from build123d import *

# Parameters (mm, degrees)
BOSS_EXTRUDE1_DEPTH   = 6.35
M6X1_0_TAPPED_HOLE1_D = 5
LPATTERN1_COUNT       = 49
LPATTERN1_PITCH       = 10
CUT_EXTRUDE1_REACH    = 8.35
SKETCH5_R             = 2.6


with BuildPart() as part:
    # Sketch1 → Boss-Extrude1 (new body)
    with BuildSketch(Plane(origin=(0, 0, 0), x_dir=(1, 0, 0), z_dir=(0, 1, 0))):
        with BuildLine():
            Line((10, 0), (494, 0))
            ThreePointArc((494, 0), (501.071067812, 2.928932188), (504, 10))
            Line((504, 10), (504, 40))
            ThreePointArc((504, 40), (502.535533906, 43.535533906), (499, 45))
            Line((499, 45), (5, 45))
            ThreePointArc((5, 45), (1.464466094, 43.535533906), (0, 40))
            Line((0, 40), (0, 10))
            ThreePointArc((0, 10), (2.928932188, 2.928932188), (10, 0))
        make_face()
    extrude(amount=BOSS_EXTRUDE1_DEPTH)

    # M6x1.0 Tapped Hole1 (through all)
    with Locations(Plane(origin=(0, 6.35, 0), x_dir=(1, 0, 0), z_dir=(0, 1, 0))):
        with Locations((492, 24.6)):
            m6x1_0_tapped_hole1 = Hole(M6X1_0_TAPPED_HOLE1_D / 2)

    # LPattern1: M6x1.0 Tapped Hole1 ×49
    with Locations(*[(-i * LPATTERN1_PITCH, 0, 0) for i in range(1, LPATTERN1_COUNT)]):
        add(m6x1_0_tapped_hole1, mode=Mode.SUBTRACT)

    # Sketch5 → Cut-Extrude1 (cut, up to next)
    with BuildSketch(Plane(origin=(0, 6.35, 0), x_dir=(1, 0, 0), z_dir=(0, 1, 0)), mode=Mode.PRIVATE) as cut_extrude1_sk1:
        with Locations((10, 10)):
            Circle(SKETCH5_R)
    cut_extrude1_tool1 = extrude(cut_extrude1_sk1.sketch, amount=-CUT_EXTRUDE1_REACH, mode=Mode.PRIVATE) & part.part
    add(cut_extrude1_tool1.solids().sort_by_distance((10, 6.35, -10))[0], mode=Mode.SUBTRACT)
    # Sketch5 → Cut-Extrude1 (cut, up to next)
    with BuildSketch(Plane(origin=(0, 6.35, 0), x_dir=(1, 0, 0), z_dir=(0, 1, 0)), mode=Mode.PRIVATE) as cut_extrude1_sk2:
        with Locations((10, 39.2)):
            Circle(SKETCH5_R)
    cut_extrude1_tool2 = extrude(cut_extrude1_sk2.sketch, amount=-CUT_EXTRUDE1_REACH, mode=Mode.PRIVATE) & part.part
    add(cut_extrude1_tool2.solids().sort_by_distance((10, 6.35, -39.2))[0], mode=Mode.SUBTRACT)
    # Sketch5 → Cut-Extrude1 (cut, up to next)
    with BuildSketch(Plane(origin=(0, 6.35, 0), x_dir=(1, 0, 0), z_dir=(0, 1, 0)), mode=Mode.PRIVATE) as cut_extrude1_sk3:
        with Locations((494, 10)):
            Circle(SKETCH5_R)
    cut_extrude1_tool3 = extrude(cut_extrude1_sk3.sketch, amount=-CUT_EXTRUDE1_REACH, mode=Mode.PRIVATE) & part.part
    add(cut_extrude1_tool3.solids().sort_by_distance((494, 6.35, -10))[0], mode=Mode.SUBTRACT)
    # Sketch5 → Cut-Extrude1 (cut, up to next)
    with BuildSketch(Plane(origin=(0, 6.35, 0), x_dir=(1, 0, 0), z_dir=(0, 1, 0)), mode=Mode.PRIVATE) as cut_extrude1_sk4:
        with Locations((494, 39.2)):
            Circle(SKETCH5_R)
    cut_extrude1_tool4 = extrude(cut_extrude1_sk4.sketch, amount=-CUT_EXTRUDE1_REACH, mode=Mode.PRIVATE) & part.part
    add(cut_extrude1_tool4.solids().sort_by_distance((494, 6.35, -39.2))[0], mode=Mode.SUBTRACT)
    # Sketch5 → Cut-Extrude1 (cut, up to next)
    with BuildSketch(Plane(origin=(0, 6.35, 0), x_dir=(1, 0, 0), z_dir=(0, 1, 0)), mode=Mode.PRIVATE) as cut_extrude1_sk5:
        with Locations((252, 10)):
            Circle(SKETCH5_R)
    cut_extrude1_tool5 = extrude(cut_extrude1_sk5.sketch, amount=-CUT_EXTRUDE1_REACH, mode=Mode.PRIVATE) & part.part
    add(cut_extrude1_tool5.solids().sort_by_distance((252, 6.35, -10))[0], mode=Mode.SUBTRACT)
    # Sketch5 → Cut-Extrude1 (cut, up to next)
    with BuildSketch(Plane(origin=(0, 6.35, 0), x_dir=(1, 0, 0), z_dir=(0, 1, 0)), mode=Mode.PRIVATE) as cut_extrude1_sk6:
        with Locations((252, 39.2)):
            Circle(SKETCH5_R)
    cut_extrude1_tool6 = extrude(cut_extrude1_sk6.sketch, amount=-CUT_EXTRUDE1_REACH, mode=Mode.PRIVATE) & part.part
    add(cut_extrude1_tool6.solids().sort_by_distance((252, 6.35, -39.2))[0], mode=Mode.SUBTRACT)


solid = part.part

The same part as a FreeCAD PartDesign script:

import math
import FreeCAD as App
import Part
import Sketcher

doc = App.newDocument("Part")
params = doc.addObject("Spreadsheet::Sheet", "Params")
for row, (alias, value) in enumerate([
    ("sketch1_radius", "10 mm"),
    ("sketch1_radius2", "5 mm"),
    ("sketch1_width", "484 mm"),
    ("sketch1_height", "30 mm"),
    ("pad1_length", "6.35 mm"),
    ("sketch2_diameter", "5 mm"),
    ("hole_diameter", "5 mm"),
    ("linearpattern_pitch", "10 mm"),
    ("sketch3_diameter", "5.2 mm"),
    ("sketch4_diameter", "5.2 mm"),
    ("sketch5_diameter", "5.2 mm"),
    ("sketch6_diameter", "5.2 mm"),
    ("sketch7_diameter", "5.2 mm"),
    ("sketch8_diameter", "5.2 mm"),
], start=1):
    params.set(f"A{row}", alias)
    params.set(f"B{row}", "=" + value)
    params.setAlias(f"B{row}", alias)

body = doc.addObject("PartDesign::Body", "Body")

sketch1 = body.newObject("Sketcher::SketchObject", "Sketch")
sketch1.AttachmentSupport = (doc.getObject("XZ_Plane"), [""])
sketch1.MapMode = "FlatFace"
sketch1.addGeometry([
    Part.LineSegment(App.Vector(10, 0, 0), App.Vector(494, 0, 0)),
    Part.ArcOfCircle(Part.Circle(App.Vector(494, -10, 0), App.Vector(0, 0, 1), 10), math.radians(0), math.radians(90)),
    Part.LineSegment(App.Vector(504, -10, 0), App.Vector(504, -40, 0)),
    Part.ArcOfCircle(Part.Circle(App.Vector(499, -40, 0), App.Vector(0, 0, 1), 5), math.radians(-90), math.radians(0)),
    Part.LineSegment(App.Vector(499, -45, 0), App.Vector(5, -45, 0)),
    Part.ArcOfCircle(Part.Circle(App.Vector(5, -40, 0), App.Vector(0, 0, 1), 5), math.radians(180), math.radians(270)),
    Part.LineSegment(App.Vector(0, -40, 0), App.Vector(0, -10, 0)),
    Part.ArcOfCircle(Part.Circle(App.Vector(10, -10, 0), App.Vector(0, 0, 1), 10), math.radians(90), math.radians(180)),
], False)
sketch1.addConstraint([
    Sketcher.Constraint("Tangent", 0, 2, 1, 2),
    Sketcher.Constraint("Tangent", 1, 1, 2, 1),
    Sketcher.Constraint("Tangent", 2, 2, 3, 2),
    Sketcher.Constraint("Tangent", 3, 1, 4, 1),
    Sketcher.Constraint("Tangent", 4, 2, 5, 2),
    Sketcher.Constraint("Tangent", 5, 1, 6, 1),
    Sketcher.Constraint("Tangent", 6, 2, 7, 2),
    Sketcher.Constraint("Tangent", 7, 1, 0, 1),
    Sketcher.Constraint("Horizontal", 0),
    Sketcher.Constraint("Vertical", 2),
    Sketcher.Constraint("Horizontal", 4),
    Sketcher.Constraint("Vertical", 6),
    Sketcher.Constraint("Equal", 3, 5),
    Sketcher.Constraint("Equal", 1, 7),
    Sketcher.Constraint("PointOnObject", 0, 2, -1),
    Sketcher.Constraint("PointOnObject", 5, 1, -2),
    Sketcher.Constraint("Radius", 1, 10.0),
    Sketcher.Constraint("Radius", 3, 5.0),
    Sketcher.Constraint("DistanceX", 0, 1, 0, 2, 484.0),
    Sketcher.Constraint("DistanceY", 2, 2, 2, 1, 30.0),
])
sketch1.setExpression("Constraints[16]", "Params.sketch1_radius")
sketch1.setExpression("Constraints[17]", "Params.sketch1_radius2")
sketch1.setExpression("Constraints[18]", "Params.sketch1_width")
sketch1.setExpression("Constraints[19]", "Params.sketch1_height")
pad1 = body.newObject("PartDesign::Pad", "Pad")
pad1.Profile = sketch1
pad1.setExpression("Length", "Params.pad1_length")
pad1.Reversed = True

sketch2 = body.newObject("Sketcher::SketchObject", "Sketch001")
sketch2.AttachmentSupport = (doc.getObject("XZ_Plane"), [""])
sketch2.MapMode = "FlatFace"
sketch2.AttachmentOffset = App.Placement(App.Vector(0, 0, -6.35), App.Rotation())
sketch2.addGeometry(Part.Circle(App.Vector(492, -24.6, 0), App.Vector(0, 0, 1), 2.5), False)
sketch2.addConstraint([
    Sketcher.Constraint("Diameter", 0, 5.0),
    Sketcher.Constraint("DistanceX", -1, 1, 0, 3, 492.0),
    Sketcher.Constraint("DistanceY", 0, 3, -1, 1, 24.6),
])
sketch2.setExpression("Constraints[0]", "Params.sketch2_diameter")
doc.recompute()
hole = body.newObject("PartDesign::Hole", "Hole")
hole.Profile = sketch2
hole.ThreadType = "None"
hole.setExpression("Diameter", "Params.hole_diameter")
hole.DepthType = "ThroughAll"
hole.Reversed = True
doc.recompute()

linearpattern = body.newObject("PartDesign::LinearPattern", "LinearPattern")
linearpattern.Originals = [hole]
linearpattern.Direction = (doc.getObject("X_Axis"), [""])
linearpattern.Mode = "offset"
linearpattern.setExpression("Offset", "Params.linearpattern_pitch")
linearpattern.Occurrences = 49
linearpattern.Reversed = True
body.Tip = linearpattern

sketch3 = body.newObject("Sketcher::SketchObject", "Sketch002")
sketch3.AttachmentSupport = (doc.getObject("XZ_Plane"), [""])
sketch3.MapMode = "FlatFace"
sketch3.AttachmentOffset = App.Placement(App.Vector(0, 0, -6.35), App.Rotation())
sketch3.addGeometry(Part.Circle(App.Vector(10, -10, 0), App.Vector(0, 0, 1), 2.6), False)
sketch3.addConstraint([
    Sketcher.Constraint("Diameter", 0, 5.2),
    Sketcher.Constraint("DistanceX", -1, 1, 0, 3, 10.0),
    Sketcher.Constraint("DistanceY", 0, 3, -1, 1, 10.0),
])
sketch3.setExpression("Constraints[0]", "Params.sketch3_diameter")
pocket1 = body.newObject("PartDesign::Pocket", "Pocket")
pocket1.Profile = sketch3
pocket1.Type = "UpToFirst"
pocket1.Reversed = True

sketch4 = body.newObject("Sketcher::SketchObject", "Sketch003")
sketch4.AttachmentSupport = (doc.getObject("XZ_Plane"), [""])
sketch4.MapMode = "FlatFace"
sketch4.AttachmentOffset = App.Placement(App.Vector(0, 0, -6.35), App.Rotation())
sketch4.addGeometry(Part.Circle(App.Vector(10, -39.2, 0), App.Vector(0, 0, 1), 2.6), False)
sketch4.addConstraint([
    Sketcher.Constraint("Diameter", 0, 5.2),
    Sketcher.Constraint("DistanceX", -1, 1, 0, 3, 10.0),
    Sketcher.Constraint("DistanceY", 0, 3, -1, 1, 39.2),
])
sketch4.setExpression("Constraints[0]", "Params.sketch4_diameter")
pocket2 = body.newObject("PartDesign::Pocket", "Pocket001")
pocket2.Profile = sketch4
pocket2.Type = "UpToFirst"
pocket2.Reversed = True

sketch5 = body.newObject("Sketcher::SketchObject", "Sketch004")
sketch5.AttachmentSupport = (doc.getObject("XZ_Plane"), [""])
sketch5.MapMode = "FlatFace"
sketch5.AttachmentOffset = App.Placement(App.Vector(0, 0, -6.35), App.Rotation())
sketch5.addGeometry(Part.Circle(App.Vector(494, -10, 0), App.Vector(0, 0, 1), 2.6), False)
sketch5.addConstraint([
    Sketcher.Constraint("Diameter", 0, 5.2),
    Sketcher.Constraint("DistanceX", -1, 1, 0, 3, 494.0),
    Sketcher.Constraint("DistanceY", 0, 3, -1, 1, 10.0),
])
sketch5.setExpression("Constraints[0]", "Params.sketch5_diameter")
pocket3 = body.newObject("PartDesign::Pocket", "Pocket002")
pocket3.Profile = sketch5
pocket3.Type = "UpToFirst"
pocket3.Reversed = True

sketch6 = body.newObject("Sketcher::SketchObject", "Sketch005")
sketch6.AttachmentSupport = (doc.getObject("XZ_Plane"), [""])
sketch6.MapMode = "FlatFace"
sketch6.AttachmentOffset = App.Placement(App.Vector(0, 0, -6.35), App.Rotation())
sketch6.addGeometry(Part.Circle(App.Vector(494, -39.2, 0), App.Vector(0, 0, 1), 2.6), False)
sketch6.addConstraint([
    Sketcher.Constraint("Diameter", 0, 5.2),
    Sketcher.Constraint("DistanceX", -1, 1, 0, 3, 494.0),
    Sketcher.Constraint("DistanceY", 0, 3, -1, 1, 39.2),
])
sketch6.setExpression("Constraints[0]", "Params.sketch6_diameter")
pocket4 = body.newObject("PartDesign::Pocket", "Pocket003")
pocket4.Profile = sketch6
pocket4.Type = "UpToFirst"
pocket4.Reversed = True

sketch7 = body.newObject("Sketcher::SketchObject", "Sketch006")
sketch7.AttachmentSupport = (doc.getObject("XZ_Plane"), [""])
sketch7.MapMode = "FlatFace"
sketch7.AttachmentOffset = App.Placement(App.Vector(0, 0, -6.35), App.Rotation())
sketch7.addGeometry(Part.Circle(App.Vector(252, -10, 0), App.Vector(0, 0, 1), 2.6), False)
sketch7.addConstraint([
    Sketcher.Constraint("Diameter", 0, 5.2),
    Sketcher.Constraint("DistanceX", -1, 1, 0, 3, 252.0),
    Sketcher.Constraint("DistanceY", 0, 3, -1, 1, 10.0),
])
sketch7.setExpression("Constraints[0]", "Params.sketch7_diameter")
pocket5 = body.newObject("PartDesign::Pocket", "Pocket004")
pocket5.Profile = sketch7
pocket5.Type = "UpToFirst"
pocket5.Reversed = True

sketch8 = body.newObject("Sketcher::SketchObject", "Sketch007")
sketch8.AttachmentSupport = (doc.getObject("XZ_Plane"), [""])
sketch8.MapMode = "FlatFace"
sketch8.AttachmentOffset = App.Placement(App.Vector(0, 0, -6.35), App.Rotation())
sketch8.addGeometry(Part.Circle(App.Vector(252, -39.2, 0), App.Vector(0, 0, 1), 2.6), False)
sketch8.addConstraint([
    Sketcher.Constraint("Diameter", 0, 5.2),
    Sketcher.Constraint("DistanceX", -1, 1, 0, 3, 252.0),
    Sketcher.Constraint("DistanceY", 0, 3, -1, 1, 39.2),
])
sketch8.setExpression("Constraints[0]", "Params.sketch8_diameter")
pocket6 = body.newObject("PartDesign::Pocket", "Pocket005")
pocket6.Profile = sketch8
pocket6.Type = "UpToFirst"
pocket6.Reversed = True

doc.recompute()
